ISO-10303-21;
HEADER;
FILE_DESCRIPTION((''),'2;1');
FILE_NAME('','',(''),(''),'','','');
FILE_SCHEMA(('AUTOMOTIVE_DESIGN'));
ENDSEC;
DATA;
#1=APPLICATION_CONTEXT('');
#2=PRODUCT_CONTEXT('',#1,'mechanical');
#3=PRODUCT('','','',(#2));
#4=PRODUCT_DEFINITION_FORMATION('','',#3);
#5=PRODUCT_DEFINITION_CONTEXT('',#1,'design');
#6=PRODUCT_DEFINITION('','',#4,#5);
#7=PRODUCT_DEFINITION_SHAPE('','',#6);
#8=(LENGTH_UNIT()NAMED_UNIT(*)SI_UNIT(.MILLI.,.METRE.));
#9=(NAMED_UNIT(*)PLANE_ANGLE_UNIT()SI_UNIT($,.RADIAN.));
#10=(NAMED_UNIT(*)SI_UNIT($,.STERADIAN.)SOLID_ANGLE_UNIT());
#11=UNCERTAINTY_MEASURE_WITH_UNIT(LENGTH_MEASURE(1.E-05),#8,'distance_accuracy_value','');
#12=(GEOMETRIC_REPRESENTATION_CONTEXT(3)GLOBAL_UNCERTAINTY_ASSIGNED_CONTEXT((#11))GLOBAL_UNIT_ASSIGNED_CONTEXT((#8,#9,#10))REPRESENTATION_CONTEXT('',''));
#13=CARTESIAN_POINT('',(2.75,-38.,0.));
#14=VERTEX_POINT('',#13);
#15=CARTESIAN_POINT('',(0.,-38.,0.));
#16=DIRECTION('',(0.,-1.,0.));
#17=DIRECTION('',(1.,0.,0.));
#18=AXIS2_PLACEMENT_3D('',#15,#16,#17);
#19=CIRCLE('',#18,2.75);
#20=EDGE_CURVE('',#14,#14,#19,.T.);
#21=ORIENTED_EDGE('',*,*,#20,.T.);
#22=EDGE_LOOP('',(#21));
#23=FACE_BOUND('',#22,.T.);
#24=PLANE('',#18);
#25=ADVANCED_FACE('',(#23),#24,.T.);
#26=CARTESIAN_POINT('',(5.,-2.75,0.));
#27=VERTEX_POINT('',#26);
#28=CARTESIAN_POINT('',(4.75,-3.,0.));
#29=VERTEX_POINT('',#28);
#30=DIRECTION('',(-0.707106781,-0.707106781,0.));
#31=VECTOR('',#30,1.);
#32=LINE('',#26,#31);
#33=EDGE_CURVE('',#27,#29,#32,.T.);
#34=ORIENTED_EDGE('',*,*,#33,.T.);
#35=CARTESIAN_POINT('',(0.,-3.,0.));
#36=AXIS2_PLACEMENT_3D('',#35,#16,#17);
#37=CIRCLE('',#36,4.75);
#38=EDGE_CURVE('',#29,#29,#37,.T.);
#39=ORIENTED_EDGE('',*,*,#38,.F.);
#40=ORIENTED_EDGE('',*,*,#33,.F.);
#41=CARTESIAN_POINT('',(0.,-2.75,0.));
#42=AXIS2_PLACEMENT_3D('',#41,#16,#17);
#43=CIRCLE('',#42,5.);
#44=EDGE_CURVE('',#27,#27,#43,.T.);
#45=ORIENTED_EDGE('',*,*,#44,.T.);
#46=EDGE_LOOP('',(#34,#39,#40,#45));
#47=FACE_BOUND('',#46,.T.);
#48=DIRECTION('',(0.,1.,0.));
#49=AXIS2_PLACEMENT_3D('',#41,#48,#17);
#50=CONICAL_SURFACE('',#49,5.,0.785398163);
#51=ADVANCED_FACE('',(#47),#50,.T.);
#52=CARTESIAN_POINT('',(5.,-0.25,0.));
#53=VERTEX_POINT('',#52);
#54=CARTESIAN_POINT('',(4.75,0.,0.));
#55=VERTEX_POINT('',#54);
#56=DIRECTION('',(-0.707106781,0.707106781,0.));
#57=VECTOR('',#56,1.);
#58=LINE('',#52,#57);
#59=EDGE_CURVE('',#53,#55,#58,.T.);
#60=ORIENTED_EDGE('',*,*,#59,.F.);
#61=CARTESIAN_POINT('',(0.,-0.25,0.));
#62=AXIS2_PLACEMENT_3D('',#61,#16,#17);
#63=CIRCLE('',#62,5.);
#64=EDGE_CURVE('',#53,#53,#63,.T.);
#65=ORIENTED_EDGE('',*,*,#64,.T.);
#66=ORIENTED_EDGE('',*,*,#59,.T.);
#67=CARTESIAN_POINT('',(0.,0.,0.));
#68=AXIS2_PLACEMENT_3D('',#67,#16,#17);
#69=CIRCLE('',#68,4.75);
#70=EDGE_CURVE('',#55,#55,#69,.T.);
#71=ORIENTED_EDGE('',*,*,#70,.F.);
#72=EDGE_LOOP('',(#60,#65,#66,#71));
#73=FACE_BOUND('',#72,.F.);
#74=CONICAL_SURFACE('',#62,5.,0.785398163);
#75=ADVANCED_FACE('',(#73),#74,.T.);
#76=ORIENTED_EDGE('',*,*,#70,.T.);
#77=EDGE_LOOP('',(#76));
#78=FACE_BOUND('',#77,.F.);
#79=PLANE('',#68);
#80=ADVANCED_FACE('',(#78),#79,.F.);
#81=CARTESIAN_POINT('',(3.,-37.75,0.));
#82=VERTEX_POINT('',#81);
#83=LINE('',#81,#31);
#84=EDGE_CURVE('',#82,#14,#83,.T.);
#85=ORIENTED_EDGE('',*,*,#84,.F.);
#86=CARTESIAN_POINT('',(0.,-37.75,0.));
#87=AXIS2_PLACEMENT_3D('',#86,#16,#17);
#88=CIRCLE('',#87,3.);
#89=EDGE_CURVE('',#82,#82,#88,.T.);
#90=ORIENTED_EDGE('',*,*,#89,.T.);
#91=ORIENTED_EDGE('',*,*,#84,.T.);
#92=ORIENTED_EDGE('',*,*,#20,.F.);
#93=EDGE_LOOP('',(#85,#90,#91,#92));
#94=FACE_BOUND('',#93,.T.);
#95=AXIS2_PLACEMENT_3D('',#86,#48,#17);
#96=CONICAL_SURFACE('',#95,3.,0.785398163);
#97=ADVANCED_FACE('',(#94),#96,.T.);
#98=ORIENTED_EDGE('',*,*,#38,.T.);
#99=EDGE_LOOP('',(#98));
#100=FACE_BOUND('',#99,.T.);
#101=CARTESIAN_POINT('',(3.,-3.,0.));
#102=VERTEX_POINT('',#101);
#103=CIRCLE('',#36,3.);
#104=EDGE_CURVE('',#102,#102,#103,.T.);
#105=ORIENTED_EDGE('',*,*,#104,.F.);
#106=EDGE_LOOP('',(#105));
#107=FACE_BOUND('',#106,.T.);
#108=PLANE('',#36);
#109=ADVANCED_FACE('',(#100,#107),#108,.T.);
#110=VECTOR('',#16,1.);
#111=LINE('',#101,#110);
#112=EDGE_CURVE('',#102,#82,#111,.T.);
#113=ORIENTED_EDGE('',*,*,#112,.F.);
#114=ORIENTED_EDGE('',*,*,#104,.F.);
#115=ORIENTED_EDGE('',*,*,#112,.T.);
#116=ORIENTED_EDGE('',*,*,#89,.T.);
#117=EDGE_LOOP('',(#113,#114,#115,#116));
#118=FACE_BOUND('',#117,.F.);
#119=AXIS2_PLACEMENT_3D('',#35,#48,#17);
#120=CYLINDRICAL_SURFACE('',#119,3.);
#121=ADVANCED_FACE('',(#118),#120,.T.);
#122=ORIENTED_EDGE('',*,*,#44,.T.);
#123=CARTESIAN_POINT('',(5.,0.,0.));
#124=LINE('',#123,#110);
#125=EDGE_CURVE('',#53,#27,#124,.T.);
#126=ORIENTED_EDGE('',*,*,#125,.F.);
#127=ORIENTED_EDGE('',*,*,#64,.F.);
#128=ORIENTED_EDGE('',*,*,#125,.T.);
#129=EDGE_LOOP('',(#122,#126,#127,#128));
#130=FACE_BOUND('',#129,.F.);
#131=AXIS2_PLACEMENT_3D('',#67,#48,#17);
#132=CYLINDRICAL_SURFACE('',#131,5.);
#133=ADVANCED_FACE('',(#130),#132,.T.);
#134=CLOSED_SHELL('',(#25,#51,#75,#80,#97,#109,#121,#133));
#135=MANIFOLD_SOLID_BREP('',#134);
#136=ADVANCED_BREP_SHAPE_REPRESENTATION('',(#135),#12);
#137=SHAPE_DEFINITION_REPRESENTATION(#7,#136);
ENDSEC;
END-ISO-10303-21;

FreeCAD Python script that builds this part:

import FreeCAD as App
import Part
import Sketcher

V = App.Vector


def edges_at(feature, points):
    """Names of the edges that pass closest to the given points."""
    edges = feature.Shape.Edges
    near = lambda p: min(range(len(edges)), key=lambda i: edges[i].distToShape(Part.Vertex(*p))[0])
    return sorted({f"Edge{near(p) + 1}" for p in points})

doc = App.newDocument("Part")
body = doc.addObject("PartDesign::Body", "Body")

# Sketch on XZ plane
sketch1 = body.newObject("Sketcher::SketchObject", "Sketch")
sketch1.AttachmentSupport = (doc.getObject("XZ_Plane"), [""])
sketch1.MapMode = "FlatFace"
sketch1.addGeometry(Part.Circle(V(0, 0, 0), V(0, 0, 1), 5), False)
sketch1.addConstraint(Sketcher.Constraint("Coincident", 0, 3, -1, 1))
sketch1.addConstraint(Sketcher.Constraint("Diameter", 0, 10.0))
pad1 = body.newObject("PartDesign::Pad", "Pad")
pad1.Profile = sketch1
pad1.Length = 3

# Sketch on XZ plane
sketch2 = body.newObject("Sketcher::SketchObject", "Sketch001")
sketch2.AttachmentSupport = (doc.getObject("XZ_Plane"), [""])
sketch2.MapMode = "FlatFace"
sketch2.AttachmentOffset = App.Placement(V(0, 0, 3), App.Rotation())
sketch2.addGeometry(Part.Circle(V(0, 0, 0), V(0, 0, 1), 3), False)
sketch2.addConstraint(Sketcher.Constraint("Coincident", 0, 3, -1, 1))
sketch2.addConstraint(Sketcher.Constraint("Diameter", 0, 6.0))
pad2 = body.newObject("PartDesign::Pad", "Pad001")
pad2.Profile = sketch2
pad2.Length = 35
doc.recompute()

chamfer = body.newObject("PartDesign::Chamfer", "Chamfer")
chamfer.Base = (pad2, edges_at(pad2, [(-5, 0, 0), (-5, -3, 0), (-3, -38, 0)]))
chamfer.Size = 0.25

doc.recompute()
